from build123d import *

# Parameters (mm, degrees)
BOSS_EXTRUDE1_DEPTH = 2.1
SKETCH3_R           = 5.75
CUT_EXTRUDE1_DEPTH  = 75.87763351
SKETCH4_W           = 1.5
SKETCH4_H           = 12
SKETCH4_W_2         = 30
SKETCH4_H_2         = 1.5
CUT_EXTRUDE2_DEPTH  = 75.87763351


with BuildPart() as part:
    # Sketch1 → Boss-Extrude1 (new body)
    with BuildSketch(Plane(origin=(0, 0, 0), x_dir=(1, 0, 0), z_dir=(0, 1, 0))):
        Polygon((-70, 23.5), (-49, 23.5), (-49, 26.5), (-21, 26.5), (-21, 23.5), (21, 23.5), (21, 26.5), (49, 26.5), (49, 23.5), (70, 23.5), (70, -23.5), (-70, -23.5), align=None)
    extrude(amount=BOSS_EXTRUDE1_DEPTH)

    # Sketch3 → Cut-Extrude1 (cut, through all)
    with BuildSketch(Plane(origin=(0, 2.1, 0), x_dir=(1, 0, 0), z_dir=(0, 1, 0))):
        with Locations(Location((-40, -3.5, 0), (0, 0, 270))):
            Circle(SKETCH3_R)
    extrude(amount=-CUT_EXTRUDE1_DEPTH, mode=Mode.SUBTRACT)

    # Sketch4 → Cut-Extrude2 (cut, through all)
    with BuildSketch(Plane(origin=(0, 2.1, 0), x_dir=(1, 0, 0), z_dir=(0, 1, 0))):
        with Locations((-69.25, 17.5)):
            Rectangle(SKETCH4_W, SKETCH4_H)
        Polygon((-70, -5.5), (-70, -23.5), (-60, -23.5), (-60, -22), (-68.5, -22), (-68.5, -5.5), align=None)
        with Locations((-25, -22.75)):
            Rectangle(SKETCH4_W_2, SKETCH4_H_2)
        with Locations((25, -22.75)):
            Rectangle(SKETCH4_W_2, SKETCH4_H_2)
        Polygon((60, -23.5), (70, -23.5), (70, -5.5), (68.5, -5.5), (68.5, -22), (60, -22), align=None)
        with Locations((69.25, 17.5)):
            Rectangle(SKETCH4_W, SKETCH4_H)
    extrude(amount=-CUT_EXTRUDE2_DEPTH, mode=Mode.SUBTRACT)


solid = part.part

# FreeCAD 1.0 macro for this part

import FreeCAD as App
import Part
import Sketcher

V = App.Vector

doc = App.newDocument("Part")
body = doc.addObject("PartDesign::Body", "Body")

sketch1 = body.newObject("Sketcher::SketchObject", "Sketch")
sketch1.AttachmentSupport = (doc.getObject("XZ_Plane"), [""])
sketch1.MapMode = "FlatFace"
sketch1.addGeometry(Part.LineSegment(V(-49, -23.5, 0), V(-70, -23.5, 0)), False)
sketch1.addGeometry(Part.LineSegment(V(-70, -23.5, 0), V(-70, 23.5, 0)), False)
sketch1.addGeometry(Part.LineSegment(V(-70, 23.5, 0), V(70, 23.5, 0)), False)
sketch1.addGeometry(Part.LineSegment(V(70, 23.5, 0), V(70, -23.5, 0)), False)
sketch1.addGeometry(Part.LineSegment(V(70, -23.5, 0), V(49, -23.5, 0)), False)
sketch1.addGeometry(Part.LineSegment(V(49, -23.5, 0), V(49, -26.5, 0)), False)
sketch1.addGeometry(Part.LineSegment(V(49, -26.5, 0), V(21, -26.5, 0)), False)
sketch1.addGeometry(Part.LineSegment(V(21, -26.5, 0), V(21, -23.5, 0)), False)
sketch1.addGeometry(Part.LineSegment(V(21, -23.5, 0), V(-21, -23.5, 0)), False)
sketch1.addGeometry(Part.LineSegment(V(-21, -23.5, 0), V(-21, -26.5, 0)), False)
sketch1.addGeometry(Part.LineSegment(V(-21, -26.5, 0), V(-49, -26.5, 0)), False)
sketch1.addGeometry(Part.LineSegment(V(-49, -26.5, 0), V(-49, -23.5, 0)), False)
sketch1.addConstraint(Sketcher.Constraint("Coincident", 0, 2, 1, 1))
sketch1.addConstraint(Sketcher.Constraint("Coincident", 1, 2, 2, 1))
sketch1.addConstraint(Sketcher.Constraint("Coincident", 2, 2, 3, 1))
sketch1.addConstraint(Sketcher.Constraint("Coincident", 3, 2, 4, 1))
sketch1.addConstraint(Sketcher.Constraint("Coincident", 4, 2, 5, 1))
sketch1.addConstraint(Sketcher.Constraint("Coincident", 5, 2, 6, 1))
sketch1.addConstraint(Sketcher.Constraint("Coincident", 6, 2, 7, 1))
sketch1.addConstraint(Sketcher.Constraint("Coincident", 7, 2, 8, 1))
sketch1.addConstraint(Sketcher.Constraint("Coincident", 8, 2, 9, 1))
sketch1.addConstraint(Sketcher.Constraint("Coincident", 9, 2, 10, 1))
sketch1.addConstraint(Sketcher.Constraint("Coincident", 10, 2, 11, 1))
sketch1.addConstraint(Sketcher.Constraint("Coincident", 11, 2, 0, 1))
sketch1.addConstraint(Sketcher.Constraint("Horizontal", 0))
sketch1.addConstraint(Sketcher.Constraint("Vertical", 1))
sketch1.addConstraint(Sketcher.Constraint("Horizontal", 2))
sketch1.addConstraint(Sketcher.Constraint("Vertical", 3))
sketch1.addConstraint(Sketcher.Constraint("Horizontal", 4))
sketch1.addConstraint(Sketcher.Constraint("Vertical", 5))
sketch1.addConstraint(Sketcher.Constraint("Horizontal", 6))
sketch1.addConstraint(Sketcher.Constraint("Vertical", 7))
sketch1.addConstraint(Sketcher.Constraint("Horizontal", 8))
sketch1.addConstraint(Sketcher.Constraint("Vertical", 9))
sketch1.addConstraint(Sketcher.Constraint("Horizontal", 10))
sketch1.addConstraint(Sketcher.Constraint("Vertical", 11))
sketch1.addConstraint(Sketcher.Constraint("Symmetric", 0, 2, 2, 2, -1, 1))
sketch1.addConstraint(Sketcher.Constraint("Symmetric", 6, 2, 9, 2, -2))
sketch1.addConstraint(Sketcher.Constraint("Symmetric", 4, 2, 11, 2, -2))
sketch1.addConstraint(Sketcher.Constraint("Horizontal", 4, 2, 7, 2))
sketch1.addConstraint(Sketcher.Constraint("DistanceX", 0, 2, 0, 1, 21.0))
sketch1.addConstraint(Sketcher.Constraint("DistanceX", 2, 1, 2, 2, 140.0))
sketch1.addConstraint(Sketcher.Constraint("DistanceX", 6, 2, 6, 1, 28.0))
sketch1.addConstraint(Sketcher.Constraint("DistanceY", 1, 1, 1, 2, 47.0))
sketch1.addConstraint(Sketcher.Constraint("DistanceY", 5, 2, 5, 1, 3.0))
pad1 = body.newObject("PartDesign::Pad", "Pad")
pad1.Profile = sketch1
pad1.Length = 2.1
pad1.Reversed = True

sketch2 = body.newObject("Sketcher::SketchObject", "Sketch001")
sketch2.AttachmentSupport = (doc.getObject("XZ_Plane"), [""])
sketch2.MapMode = "FlatFace"
sketch2.AttachmentOffset = App.Placement(V(0, 0, -2.1), App.Rotation())
sketch2.addGeometry(Part.Circle(V(-40, 4, 0), V(0, 0, 1), 6), False)
sketch2.addConstraint(Sketcher.Constraint("Diameter", 0, 11.5))
sketch2.addConstraint(Sketcher.Constraint("DistanceX", 0, 3, -1, 1, 40.0))
sketch2.addConstraint(Sketcher.Constraint("DistanceY", -1, 1, 0, 3, 3.5))
pocket1 = body.newObject("PartDesign::Pocket", "Pocket")
pocket1.Profile = sketch2
pocket1.Type = "ThroughAll"
pocket1.Reversed = True

sketch3 = body.newObject("Sketcher::SketchObject", "Sketch002")
sketch3.AttachmentSupport = (doc.getObject("XZ_Plane"), [""])
sketch3.MapMode = "FlatFace"
sketch3.AttachmentOffset = App.Placement(V(0, 0, -2.1), App.Rotation())
sketch3.addGeometry(Part.LineSegment(V(-70, -23.5, 0), V(-70, -11.5, 0)), False)
sketch3.addGeometry(Part.LineSegment(V(-70, -11.5, 0), V(-68.5, -11.5, 0)), False)
sketch3.addGeometry(Part.LineSegment(V(-68.5, -11.5, 0), V(-68.5, -23.5, 0)), False)
sketch3.addGeometry(Part.LineSegment(V(-68.5, -23.5, 0), V(-70, -23.5, 0)), False)
sketch3.addGeometry(Part.LineSegment(V(-70, 5.5, 0), V(-70, 23.5, 0)), False)
sketch3.addGeometry(Part.LineSegment(V(-70, 23.5, 0), V(-60, 23.5, 0)), False)
sketch3.addGeometry(Part.LineSegment(V(-60, 23.5, 0), V(-60, 22, 0)), False)
sketch3.addGeometry(Part.LineSegment(V(-60, 22, 0), V(-68.5, 22, 0)), False)
sketch3.addGeometry(Part.LineSegment(V(-68.5, 22, 0), V(-68.5, 5.5, 0)), False)
sketch3.addGeometry(Part.LineSegment(V(-68.5, 5.5, 0), V(-70, 5.5, 0)), False)
sketch3.addGeometry(Part.LineSegment(V(-40, 22, 0), V(-40, 23.5, 0)), False)
sketch3.addGeometry(Part.LineSegment(V(-40, 23.5, 0), V(-10, 23.5, 0)), False)
sketch3.addGeometry(Part.LineSegment(V(-10, 23.5, 0), V(-10, 22, 0)), False)
sketch3.addGeometry(Part.LineSegment(V(-10, 22, 0), V(-40, 22, 0)), False)
sketch3.addGeometry(Part.LineSegment(V(10, 22, 0), V(10, 23.5, 0)), False)
sketch3.addGeometry(Part.LineSegment(V(10, 23.5, 0), V(40, 23.5, 0)), False)
sketch3.addGeometry(Part.LineSegment(V(40, 23.5, 0), V(40, 22, 0)), False)
sketch3.addGeometry(Part.LineSegment(V(40, 22, 0), V(10, 22, 0)), False)
sketch3.addGeometry(Part.LineSegment(V(60, 23.5, 0), V(70, 23.5, 0)), False)
sketch3.addGeometry(Part.LineSegment(V(70, 23.5, 0), V(70, 5.5, 0)), False)
sketch3.addGeometry(Part.LineSegment(V(70, 5.5, 0), V(68.5, 5.5, 0)), False)
sketch3.addGeometry(Part.LineSegment(V(68.5, 5.5, 0), V(68.5, 22, 0)), False)
sketch3.addGeometry(Part.LineSegment(V(68.5, 22, 0), V(60, 22, 0)), False)
sketch3.addGeometry(Part.LineSegment(V(60, 22, 0), V(60, 23.5, 0)), False)
sketch3.addGeometry(Part.LineSegment(V(68.5, -23.5, 0), V(68.5, -11.5, 0)), False)
sketch3.addGeometry(Part.LineSegment(V(68.5, -11.5, 0), V(70, -11.5, 0)), False)
sketch3.addGeometry(Part.LineSegment(V(70, -11.5, 0), V(70, -23.5, 0)), False)
sketch3.addGeometry(Part.LineSegment(V(70, -23.5, 0), V(68.5, -23.5, 0)), False)
sketch3.addConstraint(Sketcher.Constraint("Coincident", 0, 2, 1, 1))
sketch3.addConstraint(Sketcher.Constraint("Coincident", 1, 2, 2, 1))
sketch3.addConstraint(Sketcher.Constraint("Coincident", 2, 2, 3, 1))
sketch3.addConstraint(Sketcher.Constraint("Coincident", 3, 2, 0, 1))
sketch3.addConstraint(Sketcher.Constraint("Coincident", 4, 2, 5, 1))
sketch3.addConstraint(Sketcher.Constraint("Coincident", 5, 2, 6, 1))
sketch3.addConstraint(Sketcher.Constraint("Coincident", 6, 2, 7, 1))
sketch3.addConstraint(Sketcher.Constraint("Coincident", 7, 2, 8, 1))
sketch3.addConstraint(Sketcher.Constraint("Coincident", 8, 2, 9, 1))
sketch3.addConstraint(Sketcher.Constraint("Coincident", 9, 2, 4, 1))
sketch3.addConstraint(Sketcher.Constraint("Coincident", 10, 2, 11, 1))
sketch3.addConstraint(Sketcher.Constraint("Coincident", 11, 2, 12, 1))
sketch3.addConstraint(Sketcher.Constraint("Coincident", 12, 2, 13, 1))
sketch3.addConstraint(Sketcher.Constraint("Coincident", 13, 2, 10, 1))
sketch3.addConstraint(Sketcher.Constraint("Coincident", 14, 2, 15, 1))
sketch3.addConstraint(Sketcher.Constraint("Coincident", 15, 2, 16, 1))
sketch3.addConstraint(Sketcher.Constraint("Coincident", 16, 2, 17, 1))
sketch3.addConstraint(Sketcher.Constraint("Coincident", 17, 2, 14, 1))
sketch3.addConstraint(Sketcher.Constraint("Coincident", 18, 2, 19, 1))
sketch3.addConstraint(Sketcher.Constraint("Coincident", 19, 2, 20, 1))
sketch3.addConstraint(Sketcher.Constraint("Coincident", 20, 2, 21, 1))
sketch3.addConstraint(Sketcher.Constraint("Coincident", 21, 2, 22, 1))
sketch3.addConstraint(Sketcher.Constraint("Coincident", 22, 2, 23, 1))
sketch3.addConstraint(Sketcher.Constraint("Coincident", 23, 2, 18, 1))
sketch3.addConstraint(Sketcher.Constraint("Coincident", 24, 2, 25, 1))
sketch3.addConstraint(Sketcher.Constraint("Coincident", 25, 2, 26, 1))
sketch3.addConstraint(Sketcher.Constraint("Coincident", 26, 2, 27, 1))
sketch3.addConstraint(Sketcher.Constraint("Coincident", 27, 2, 24, 1))
sketch3.addConstraint(Sketcher.Constraint("Vertical", 0))
sketch3.addConstraint(Sketcher.Constraint("Horizontal", 1))
sketch3.addConstraint(Sketcher.Constraint("Vertical", 2))
sketch3.addConstraint(Sketcher.Constraint("Horizontal", 3))
sketch3.addConstraint(Sketcher.Constraint("Vertical", 4))
sketch3.addConstraint(Sketcher.Constraint("Horizontal", 5))
sketch3.addConstraint(Sketcher.Constraint("Vertical", 6))
sketch3.addConstraint(Sketcher.Constraint("Horizontal", 7))
sketch3.addConstraint(Sketcher.Constraint("Vertical", 8))
sketch3.addConstraint(Sketcher.Constraint("Horizontal", 9))
sketch3.addConstraint(Sketcher.Constraint("Vertical", 10))
sketch3.addConstraint(Sketcher.Constraint("Horizontal", 11))
sketch3.addConstraint(Sketcher.Constraint("Vertical", 12))
sketch3.addConstraint(Sketcher.Constraint("Horizontal", 13))
sketch3.addConstraint(Sketcher.Constraint("Vertical", 14))
sketch3.addConstraint(Sketcher.Constraint("Horizontal", 15))
sketch3.addConstraint(Sketcher.Constraint("Vertical", 16))
sketch3.addConstraint(Sketcher.Constraint("Horizontal", 17))
sketch3.addConstraint(Sketcher.Constraint("Horizontal", 18))
sketch3.addConstraint(Sketcher.Constraint("Vertical", 19))
sketch3.addConstraint(Sketcher.Constraint("Horizontal", 20))
sketch3.addConstraint(Sketcher.Constraint("Vertical", 21))
sketch3.addConstraint(Sketcher.Constraint("Horizontal", 22))
sketch3.addConstraint(Sketcher.Constraint("Vertical", 23))
sketch3.addConstraint(Sketcher.Constraint("Vertical", 24))
sketch3.addConstraint(Sketcher.Constraint("Horizontal", 25))
sketch3.addConstraint(Sketcher.Constraint("Vertical", 26))
sketch3.addConstraint(Sketcher.Constraint("Horizontal", 27))
sketch3.addConstraint(Sketcher.Constraint("Symmetric", 3, 2, 18, 2, -1, 1))
sketch3.addConstraint(Sketcher.Constraint("Symmetric", 4, 2, 26, 2, -1, 1))
sketch3.addConstraint(Sketcher.Constraint("Symmetric", 11, 2, 14, 2, -2))
sketch3.addConstraint(Sketcher.Constraint("Symmetric", 13, 2, 16, 2, -2))
sketch3.addConstraint(Sketcher.Constraint("Symmetric", 4, 2, 18, 2, -2))
sketch3.addConstraint(Sketcher.Constraint("Symmetric", 8, 2, 20, 2, -2))
sketch3.addConstraint(Sketcher.Constraint("Symmetric", 6, 2, 22, 2, -2))
sketch3.addConstraint(Sketcher.Constraint("Symmetric", 1, 2, 24, 2, -2))
sketch3.addConstraint(Sketcher.Constraint("Horizontal", 5, 2, 10, 2))
sketch3.addConstraint(Sketcher.Constraint("Horizontal", 7, 2, 12, 2))
sketch3.addConstraint(Sketcher.Constraint("Vertical", 2, 2, 7, 2))
sketch3.addConstraint(Sketcher.Constraint("Equal", 27, 6))
sketch3.addConstraint(Sketcher.Constraint("DistanceX", 5, 1, 5, 2, 10.0))
sketch3.addConstraint(Sketcher.Constraint("DistanceX", 11, 1, 11, 2, 30.0))
sketch3.addConstraint(Sketcher.Constraint("DistanceY", 0, 1, 0, 2, 12.0))
sketch3.addConstraint(Sketcher.Constraint("DistanceY", 4, 1, 4, 2, 18.0))
sketch3.addConstraint(Sketcher.Constraint("DistanceX", 1, 1, 1, 2, 1.5))
sketch3.addConstraint(Sketcher.Constraint("DistanceX", 0, 2, -1, 1, 70.0))
sketch3.addConstraint(Sketcher.Constraint("DistanceY", -1, 1, 6, 2, 22.0))
sketch3.addConstraint(Sketcher.Constraint("DistanceX", 10, 2, -1, 1, 40.0))
pocket2 = body.newObject("PartDesign::Pocket", "Pocket001")
pocket2.Profile = sketch3
pocket2.Type = "ThroughAll"
pocket2.Reversed = True

doc.recompute()
